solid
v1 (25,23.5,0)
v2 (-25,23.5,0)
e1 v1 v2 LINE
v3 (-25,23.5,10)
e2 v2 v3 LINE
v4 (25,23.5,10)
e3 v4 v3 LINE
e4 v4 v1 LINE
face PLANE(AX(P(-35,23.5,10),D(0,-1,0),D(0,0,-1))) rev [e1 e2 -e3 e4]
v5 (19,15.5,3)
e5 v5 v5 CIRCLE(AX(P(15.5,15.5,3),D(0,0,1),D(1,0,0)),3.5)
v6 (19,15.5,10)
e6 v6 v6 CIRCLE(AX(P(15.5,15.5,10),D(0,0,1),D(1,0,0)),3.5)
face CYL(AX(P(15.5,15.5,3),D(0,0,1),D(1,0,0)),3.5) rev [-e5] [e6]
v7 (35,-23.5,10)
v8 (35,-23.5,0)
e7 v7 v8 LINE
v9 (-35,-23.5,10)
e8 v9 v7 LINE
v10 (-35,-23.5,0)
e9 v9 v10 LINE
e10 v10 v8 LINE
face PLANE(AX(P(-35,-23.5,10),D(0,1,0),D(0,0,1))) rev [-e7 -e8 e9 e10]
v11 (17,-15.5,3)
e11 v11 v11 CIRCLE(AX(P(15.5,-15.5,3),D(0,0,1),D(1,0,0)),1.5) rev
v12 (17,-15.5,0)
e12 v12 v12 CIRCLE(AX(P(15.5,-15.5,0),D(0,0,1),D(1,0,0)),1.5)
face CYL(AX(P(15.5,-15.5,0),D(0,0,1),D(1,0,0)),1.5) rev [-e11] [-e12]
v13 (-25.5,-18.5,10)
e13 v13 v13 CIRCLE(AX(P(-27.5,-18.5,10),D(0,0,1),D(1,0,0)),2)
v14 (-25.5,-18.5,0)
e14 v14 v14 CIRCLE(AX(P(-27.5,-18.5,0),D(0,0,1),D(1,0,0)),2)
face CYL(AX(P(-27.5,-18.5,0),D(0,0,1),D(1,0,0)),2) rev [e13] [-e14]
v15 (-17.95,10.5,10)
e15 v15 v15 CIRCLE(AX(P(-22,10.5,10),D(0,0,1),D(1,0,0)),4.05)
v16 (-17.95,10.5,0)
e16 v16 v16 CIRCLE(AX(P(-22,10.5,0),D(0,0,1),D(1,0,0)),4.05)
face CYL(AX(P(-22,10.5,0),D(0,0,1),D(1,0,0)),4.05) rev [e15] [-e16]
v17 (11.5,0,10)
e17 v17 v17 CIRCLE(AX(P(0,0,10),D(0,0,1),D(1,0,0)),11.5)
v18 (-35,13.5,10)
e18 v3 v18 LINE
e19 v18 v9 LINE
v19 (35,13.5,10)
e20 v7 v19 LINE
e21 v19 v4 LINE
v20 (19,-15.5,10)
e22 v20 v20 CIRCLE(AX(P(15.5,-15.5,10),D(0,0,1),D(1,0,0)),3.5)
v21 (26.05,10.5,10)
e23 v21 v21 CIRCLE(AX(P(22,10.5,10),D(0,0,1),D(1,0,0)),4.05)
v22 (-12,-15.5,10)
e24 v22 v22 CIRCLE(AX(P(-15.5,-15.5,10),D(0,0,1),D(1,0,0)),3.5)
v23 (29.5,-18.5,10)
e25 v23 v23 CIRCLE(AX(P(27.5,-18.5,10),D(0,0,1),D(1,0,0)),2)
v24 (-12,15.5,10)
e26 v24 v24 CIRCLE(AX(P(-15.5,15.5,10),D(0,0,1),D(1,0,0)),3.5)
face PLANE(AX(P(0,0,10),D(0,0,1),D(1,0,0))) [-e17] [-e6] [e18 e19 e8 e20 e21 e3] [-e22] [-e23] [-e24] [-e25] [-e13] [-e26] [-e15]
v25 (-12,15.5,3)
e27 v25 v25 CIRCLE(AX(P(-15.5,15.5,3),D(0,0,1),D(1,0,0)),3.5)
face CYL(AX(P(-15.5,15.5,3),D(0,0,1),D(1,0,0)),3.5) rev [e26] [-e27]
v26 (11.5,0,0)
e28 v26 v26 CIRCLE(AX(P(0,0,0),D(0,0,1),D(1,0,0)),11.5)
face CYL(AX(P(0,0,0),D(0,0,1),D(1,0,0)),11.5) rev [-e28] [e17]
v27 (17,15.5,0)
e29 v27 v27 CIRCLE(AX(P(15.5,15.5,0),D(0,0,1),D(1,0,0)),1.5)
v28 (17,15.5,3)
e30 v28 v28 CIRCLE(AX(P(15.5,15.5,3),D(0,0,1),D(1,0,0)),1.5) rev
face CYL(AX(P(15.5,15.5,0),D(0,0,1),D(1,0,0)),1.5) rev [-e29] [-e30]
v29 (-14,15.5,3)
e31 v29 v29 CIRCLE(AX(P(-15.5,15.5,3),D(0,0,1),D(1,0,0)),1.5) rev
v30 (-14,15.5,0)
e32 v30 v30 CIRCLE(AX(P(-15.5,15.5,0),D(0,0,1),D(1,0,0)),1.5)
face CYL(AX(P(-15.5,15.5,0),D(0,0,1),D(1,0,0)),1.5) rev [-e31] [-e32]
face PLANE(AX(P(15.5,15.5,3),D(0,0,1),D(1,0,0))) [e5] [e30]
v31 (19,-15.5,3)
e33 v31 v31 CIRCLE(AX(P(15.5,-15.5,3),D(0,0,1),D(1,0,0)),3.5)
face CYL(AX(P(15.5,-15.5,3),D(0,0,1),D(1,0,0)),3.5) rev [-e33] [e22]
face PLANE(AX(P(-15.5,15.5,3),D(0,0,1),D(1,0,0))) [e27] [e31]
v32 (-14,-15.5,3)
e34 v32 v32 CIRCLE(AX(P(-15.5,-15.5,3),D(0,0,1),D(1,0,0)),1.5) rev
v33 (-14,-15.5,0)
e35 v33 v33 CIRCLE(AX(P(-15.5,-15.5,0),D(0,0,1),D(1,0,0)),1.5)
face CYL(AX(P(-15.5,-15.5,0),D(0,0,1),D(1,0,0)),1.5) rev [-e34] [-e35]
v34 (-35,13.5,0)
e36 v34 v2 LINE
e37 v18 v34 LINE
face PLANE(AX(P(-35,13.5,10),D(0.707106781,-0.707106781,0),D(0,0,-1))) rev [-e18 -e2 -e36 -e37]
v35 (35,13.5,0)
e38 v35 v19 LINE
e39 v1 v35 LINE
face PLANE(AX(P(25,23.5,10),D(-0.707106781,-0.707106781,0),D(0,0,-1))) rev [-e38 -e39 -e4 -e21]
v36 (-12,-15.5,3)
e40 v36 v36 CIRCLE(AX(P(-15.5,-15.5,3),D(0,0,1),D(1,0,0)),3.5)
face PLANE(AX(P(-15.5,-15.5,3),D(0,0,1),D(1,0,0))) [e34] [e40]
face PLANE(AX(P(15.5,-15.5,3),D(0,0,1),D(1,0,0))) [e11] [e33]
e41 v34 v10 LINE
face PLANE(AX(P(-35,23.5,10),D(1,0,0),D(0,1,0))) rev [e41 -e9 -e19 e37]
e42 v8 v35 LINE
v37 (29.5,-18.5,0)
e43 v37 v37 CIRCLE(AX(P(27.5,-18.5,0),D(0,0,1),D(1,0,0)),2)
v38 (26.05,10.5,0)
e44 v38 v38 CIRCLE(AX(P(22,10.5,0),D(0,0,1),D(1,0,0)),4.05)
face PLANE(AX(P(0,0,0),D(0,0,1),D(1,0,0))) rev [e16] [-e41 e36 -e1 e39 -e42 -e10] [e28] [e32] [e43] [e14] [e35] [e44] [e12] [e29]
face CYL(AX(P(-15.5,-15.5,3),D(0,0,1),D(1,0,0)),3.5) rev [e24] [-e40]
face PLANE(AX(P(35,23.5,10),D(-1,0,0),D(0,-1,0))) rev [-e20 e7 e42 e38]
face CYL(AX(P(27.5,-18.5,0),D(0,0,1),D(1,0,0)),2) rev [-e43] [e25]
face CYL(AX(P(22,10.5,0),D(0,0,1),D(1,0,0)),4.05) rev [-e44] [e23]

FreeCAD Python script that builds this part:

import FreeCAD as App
import Part
import Sketcher
from FreeCAD import Vector


def edges_at(feature, points):
    """Names of the edges that pass closest to the given points."""
    edges = feature.Shape.Edges
    near = lambda p: min(range(len(edges)), key=lambda i: edges[i].distToShape(Part.Vertex(*p))[0])
    return sorted({f"Edge{near(p) + 1}" for p in points})

doc = App.newDocument("Part")
params = doc.addObject("Spreadsheet::Sheet", "Params")
for row, (alias, value) in enumerate([
    ("sketch1_width", "70 mm"),
    ("sketch1_height", "47 mm"),
    ("pad1_length", "10 mm"),
    ("sketch2_diameter", "23 mm"),
    ("pocket1_length", "10 mm"),
    ("sketch3_diameter", "3 mm"),
    ("pocket2_length", "10 mm"),
    ("sketch4_diameter", "8.1 mm"),
    ("pocket3_length", "10 mm"),
    ("sketch5_diameter", "4 mm"),
    ("pocket4_length", "10 mm"),
    ("sketch6_diameter", "7 mm"),
    ("pocket5_length", "7 mm"),
    ("chamfer_size", "10 mm"),
], start=1):
    params.set(f"A{row}", alias)
    params.set(f"B{row}", "=" + value)
    params.setAlias(f"B{row}", alias)

body = doc.addObject("PartDesign::Body", "Body")

sketch1 = body.newObject("Sketcher::SketchObject", "Sketch")
sketch1.AttachmentSupport = (doc.getObject("XY_Plane"), [""])
sketch1.MapMode = "FlatFace"
sketch1.addGeometry(Part.LineSegment(Vector(-35, 23.5, 0), Vector(-35, -23.5, 0)), False)
sketch1.addGeometry(Part.LineSegment(Vector(-35, -23.5, 0), Vector(35, -23.5, 0)), False)
sketch1.addGeometry(Part.LineSegment(Vector(35, -23.5, 0), Vector(35, 23.5, 0)), False)
sketch1.addGeometry(Part.LineSegment(Vector(35, 23.5, 0), Vector(-35, 23.5, 0)), False)
sketch1.addConstraint(Sketcher.Constraint("Coincident", 0, 2, 1, 1))
sketch1.addConstraint(Sketcher.Constraint("Coincident", 1, 2, 2, 1))
sketch1.addConstraint(Sketcher.Constraint("Coincident", 2, 2, 3, 1))
sketch1.addConstraint(Sketcher.Constraint("Coincident", 3, 2, 0, 1))
sketch1.addConstraint(Sketcher.Constraint("Vertical", 0))
sketch1.addConstraint(Sketcher.Constraint("Horizontal", 1))
sketch1.addConstraint(Sketcher.Constraint("Vertical", 2))
sketch1.addConstraint(Sketcher.Constraint("Horizontal", 3))
sketch1.addConstraint(Sketcher.Constraint("Symmetric", 0, 2, 2, 2, -1, 1))
sketch1.addConstraint(Sketcher.Constraint("DistanceX", 1, 1, 1, 2, 70.0))
sketch1.addConstraint(Sketcher.Constraint("DistanceY", 0, 2, 0, 1, 47.0))
sketch1.setExpression("Constraints[9]", "Params.sketch1_width")
sketch1.setExpression("Constraints[10]", "Params.sketch1_height")
pad1 = body.newObject("PartDesign::Pad", "Pad")
pad1.Profile = sketch1
pad1.setExpression("Length", "Params.pad1_length")

sketch2 = body.newObject("Sketcher::SketchObject", "Sketch001")
sketch2.AttachmentSupport = (doc.getObject("XY_Plane"), [""])
sketch2.MapMode = "FlatFace"
sketch2.AttachmentOffset = App.Placement(Vector(0, 0, 10), App.Rotation())
sketch2.addGeometry(Part.Circle(Vector(0, 0, 0), Vector(0, 0, 1), 11.5), False)
sketch2.addConstraint(Sketcher.Constraint("Coincident", 0, 3, -1, 1))
sketch2.addConstraint(Sketcher.Constraint("Diameter", 0, 23.0))
sketch2.setExpression("Constraints[1]", "Params.sketch2_diameter")
pocket1 = body.newObject("PartDesign::Pocket", "Pocket")
pocket1.Profile = sketch2
pocket1.setExpression("Length", "Params.pocket1_length")

sketch3 = body.newObject("Sketcher::SketchObject", "Sketch002")
sketch3.AttachmentSupport = (doc.getObject("XY_Plane"), [""])
sketch3.MapMode = "FlatFace"
sketch3.AttachmentOffset = App.Placement(Vector(0, 0, 10), App.Rotation())
sketch3.addGeometry(Part.Circle(Vector(-15.5, 15.5, 0), Vector(0, 0, 1), 1.5), False)
sketch3.addGeometry(Part.Circle(Vector(15.5, 15.5, 0), Vector(0, 0, 1), 1.5), False)
sketch3.addGeometry(Part.Circle(Vector(15.5, -15.5, 0), Vector(0, 0, 1), 1.5), False)
sketch3.addGeometry(Part.Circle(Vector(-15.5, -15.5, 0), Vector(0, 0, 1), 1.5), False)
sketch3.addConstraint(Sketcher.Constraint("Equal", 0, 1))
sketch3.addConstraint(Sketcher.Constraint("Equal", 1, 2))
sketch3.addConstraint(Sketcher.Constraint("Equal", 2, 3))
sketch3.addConstraint(Sketcher.Constraint("Symmetric", 0, 3, 2, 3, -1, 1))
sketch3.addConstraint(Sketcher.Constraint("Symmetric", 1, 3, 3, 3, -1, 1))
sketch3.addConstraint(Sketcher.Constraint("Symmetric", 0, 3, 1, 3, -2))
sketch3.addConstraint(Sketcher.Constraint("Diameter", 0, 3.0))
sketch3.addConstraint(Sketcher.Constraint("DistanceX", 0, 3, 1, 3, 31.0))
sketch3.addConstraint(Sketcher.Constraint("DistanceY", 2, 3, 1, 3, 31.0))
sketch3.setExpression("Constraints[6]", "Params.sketch3_diameter")
pocket2 = body.newObject("PartDesign::Pocket", "Pocket001")
pocket2.Profile = sketch3
pocket2.setExpression("Length", "Params.pocket2_length")

sketch4 = body.newObject("Sketcher::SketchObject", "Sketch003")
sketch4.AttachmentSupport = (doc.getObject("XY_Plane"), [""])
sketch4.MapMode = "FlatFace"
sketch4.AttachmentOffset = App.Placement(Vector(0, 0, 10), App.Rotation())
sketch4.addGeometry(Part.Circle(Vector(-22, 10.5, 0), Vector(0, 0, 1), 4.05), False)
sketch4.addGeometry(Part.Circle(Vector(22, 10.5, 0), Vector(0, 0, 1), 4.05), False)
sketch4.addConstraint(Sketcher.Constraint("Equal", 0, 1))
sketch4.addConstraint(Sketcher.Constraint("Symmetric", 0, 3, 1, 3, -2))
sketch4.addConstraint(Sketcher.Constraint("Diameter", 0, 8.1))
sketch4.addConstraint(Sketcher.Constraint("DistanceX", 0, 3, -1, 1, 22.0))
sketch4.addConstraint(Sketcher.Constraint("DistanceY", -1, 1, 0, 3, 10.5))
sketch4.setExpression("Constraints[2]", "Params.sketch4_diameter")
pocket3 = body.newObject("PartDesign::Pocket", "Pocket002")
pocket3.Profile = sketch4
pocket3.setExpression("Length", "Params.pocket3_length")

sketch5 = body.newObject("Sketcher::SketchObject", "Sketch004")
sketch5.AttachmentSupport = (doc.getObject("XY_Plane"), [""])
sketch5.MapMode = "FlatFace"
sketch5.AttachmentOffset = App.Placement(Vector(0, 0, 10), App.Rotation())
sketch5.addGeometry(Part.Circle(Vector(-27.5, -18.5, 0), Vector(0, 0, 1), 2), False)
sketch5.addGeometry(Part.Circle(Vector(27.5, -18.5, 0), Vector(0, 0, 1), 2), False)
sketch5.addConstraint(Sketcher.Constraint("Equal", 0, 1))
sketch5.addConstraint(Sketcher.Constraint("Symmetric", 0, 3, 1, 3, -2))
sketch5.addConstraint(Sketcher.Constraint("Diameter", 0, 4.0))
sketch5.addConstraint(Sketcher.Constraint("DistanceX", 0, 3, 1, 3, 55.0))
sketch5.addConstraint(Sketcher.Constraint("DistanceY", 0, 3, -1, 1, 18.5))
sketch5.setExpression("Constraints[2]", "Params.sketch5_diameter")
pocket4 = body.newObject("PartDesign::Pocket", "Pocket003")
pocket4.Profile = sketch5
pocket4.setExpression("Length", "Params.pocket4_length")

sketch6 = body.newObject("Sketcher::SketchObject", "Sketch005")
sketch6.AttachmentSupport = (doc.getObject("XY_Plane"), [""])
sketch6.MapMode = "FlatFace"
sketch6.AttachmentOffset = App.Placement(Vector(0, 0, 10), App.Rotation())
sketch6.addGeometry(Part.Circle(Vector(-15.5, -15.5, 0), Vector(0, 0, 1), 3.5), False)
sketch6.addGeometry(Part.Circle(Vector(-15.5, 15.5, 0), Vector(0, 0, 1), 3.5), False)
sketch6.addGeometry(Part.Circle(Vector(15.5, 15.5, 0), Vector(0, 0, 1), 3.5), False)
sketch6.addGeometry(Part.Circle(Vector(15.5, -15.5, 0), Vector(0, 0, 1), 3.5), False)
sketch6.addConstraint(Sketcher.Constraint("Equal", 0, 1))
sketch6.addConstraint(Sketcher.Constraint("Equal", 1, 2))
sketch6.addConstraint(Sketcher.Constraint("Equal", 2, 3))
sketch6.addConstraint(Sketcher.Constraint("Symmetric", 0, 3, 2, 3, -1, 1))
sketch6.addConstraint(Sketcher.Constraint("Symmetric", 1, 3, 3, 3, -1, 1))
sketch6.addConstraint(Sketcher.Constraint("Symmetric", 1, 3, 2, 3, -2))
sketch6.addConstraint(Sketcher.Constraint("Diameter", 0, 7.0))
sketch6.addConstraint(Sketcher.Constraint("DistanceY", 0, 3, 1, 3, 31.0))
sketch6.addConstraint(Sketcher.Constraint("DistanceX", 1, 3, 2, 3, 31.0))
sketch6.setExpression("Constraints[6]", "Params.sketch6_diameter")
pocket5 = body.newObject("PartDesign::Pocket", "Pocket004")
pocket5.Profile = sketch6
pocket5.setExpression("Length", "Params.pocket5_length")
doc.recompute()

chamfer = body.newObject("PartDesign::Chamfer", "Chamfer")
chamfer.Base = (pocket5, edges_at(pocket5, [(-35, 23.5, 5), (35, 23.5, 5)]))
chamfer.setExpression("Size", "Params.chamfer_size")

doc.recompute()
